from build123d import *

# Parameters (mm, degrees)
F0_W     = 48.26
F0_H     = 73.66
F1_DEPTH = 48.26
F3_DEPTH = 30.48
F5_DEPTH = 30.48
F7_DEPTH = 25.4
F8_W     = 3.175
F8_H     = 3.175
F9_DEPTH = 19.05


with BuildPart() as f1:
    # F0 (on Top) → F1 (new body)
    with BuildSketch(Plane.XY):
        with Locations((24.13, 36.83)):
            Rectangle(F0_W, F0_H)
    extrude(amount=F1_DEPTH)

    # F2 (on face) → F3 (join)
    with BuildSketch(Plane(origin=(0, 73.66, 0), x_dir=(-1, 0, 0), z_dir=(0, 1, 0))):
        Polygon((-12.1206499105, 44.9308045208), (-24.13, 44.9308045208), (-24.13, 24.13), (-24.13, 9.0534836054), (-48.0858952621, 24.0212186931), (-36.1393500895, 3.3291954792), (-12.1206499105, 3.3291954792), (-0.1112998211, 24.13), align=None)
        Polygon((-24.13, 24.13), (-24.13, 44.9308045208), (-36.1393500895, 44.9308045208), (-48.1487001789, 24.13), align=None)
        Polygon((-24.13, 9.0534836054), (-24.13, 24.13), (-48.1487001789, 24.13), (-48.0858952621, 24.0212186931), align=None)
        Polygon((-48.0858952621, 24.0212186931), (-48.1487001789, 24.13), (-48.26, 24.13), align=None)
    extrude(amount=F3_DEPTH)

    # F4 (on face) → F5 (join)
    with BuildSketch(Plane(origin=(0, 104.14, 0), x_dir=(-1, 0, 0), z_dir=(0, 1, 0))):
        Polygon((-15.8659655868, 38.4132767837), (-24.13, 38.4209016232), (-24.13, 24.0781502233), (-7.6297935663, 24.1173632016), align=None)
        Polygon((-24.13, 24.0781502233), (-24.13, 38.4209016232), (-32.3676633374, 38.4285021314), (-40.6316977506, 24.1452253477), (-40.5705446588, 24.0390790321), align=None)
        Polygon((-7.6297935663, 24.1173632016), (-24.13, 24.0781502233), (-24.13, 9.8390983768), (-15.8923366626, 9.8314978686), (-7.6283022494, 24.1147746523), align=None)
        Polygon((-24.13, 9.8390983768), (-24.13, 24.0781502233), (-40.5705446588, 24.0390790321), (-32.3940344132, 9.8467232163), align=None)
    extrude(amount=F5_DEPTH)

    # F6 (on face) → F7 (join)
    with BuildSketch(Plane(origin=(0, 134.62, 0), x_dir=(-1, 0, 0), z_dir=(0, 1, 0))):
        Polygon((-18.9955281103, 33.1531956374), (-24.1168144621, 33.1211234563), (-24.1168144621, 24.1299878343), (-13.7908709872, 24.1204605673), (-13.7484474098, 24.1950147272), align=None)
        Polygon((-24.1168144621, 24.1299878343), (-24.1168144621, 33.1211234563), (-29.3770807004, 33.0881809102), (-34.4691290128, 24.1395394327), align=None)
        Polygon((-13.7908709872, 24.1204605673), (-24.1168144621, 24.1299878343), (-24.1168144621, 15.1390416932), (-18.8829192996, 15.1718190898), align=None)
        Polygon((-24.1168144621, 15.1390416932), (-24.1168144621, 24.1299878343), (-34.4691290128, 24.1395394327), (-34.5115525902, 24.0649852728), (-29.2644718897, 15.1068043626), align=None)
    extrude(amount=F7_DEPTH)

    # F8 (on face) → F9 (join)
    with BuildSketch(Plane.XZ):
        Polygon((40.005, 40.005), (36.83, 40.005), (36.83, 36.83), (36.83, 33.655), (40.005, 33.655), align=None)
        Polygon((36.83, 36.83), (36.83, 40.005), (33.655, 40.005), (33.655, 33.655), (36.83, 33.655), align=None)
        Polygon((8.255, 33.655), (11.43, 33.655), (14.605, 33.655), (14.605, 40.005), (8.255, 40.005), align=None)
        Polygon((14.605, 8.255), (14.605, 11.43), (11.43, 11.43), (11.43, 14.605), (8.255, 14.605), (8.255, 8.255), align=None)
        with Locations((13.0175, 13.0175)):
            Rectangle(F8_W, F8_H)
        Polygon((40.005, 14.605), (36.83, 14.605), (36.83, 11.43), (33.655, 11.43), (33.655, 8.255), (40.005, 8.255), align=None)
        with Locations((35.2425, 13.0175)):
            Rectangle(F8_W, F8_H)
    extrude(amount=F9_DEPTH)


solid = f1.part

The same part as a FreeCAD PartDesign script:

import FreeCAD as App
import Part
import Sketcher
Q = App.Units.Quantity

doc = App.newDocument("Part")
body = doc.addObject("PartDesign::Body", "Body")

# Sketch on XY plane
sketch1 = doc.addObject("Sketcher::SketchObject", "Sketch")
body.addObject(sketch1)
sketch1.AttachmentSupport = (doc.XY_Plane, [""])
sketch1.MapMode = "FlatFace"
sketch1.addGeometry(Part.LineSegment(App.Vector(0, 73.66, 0), App.Vector(0, 0, 0)), False)
sketch1.addGeometry(Part.LineSegment(App.Vector(0, 0, 0), App.Vector(48.26, 0, 0)), False)
sketch1.addGeometry(Part.LineSegment(App.Vector(48.26, 0, 0), App.Vector(48.26, 73.66, 0)), False)
sketch1.addGeometry(Part.LineSegment(App.Vector(48.26, 73.66, 0), App.Vector(0, 73.66, 0)), False)
sketch1.addConstraint(Sketcher.Constraint("Coincident", 0, 2, 1, 1))
sketch1.addConstraint(Sketcher.Constraint("Coincident", 1, 2, 2, 1))
sketch1.addConstraint(Sketcher.Constraint("Coincident", 2, 2, 3, 1))
sketch1.addConstraint(Sketcher.Constraint("Coincident", 3, 2, 0, 1))
sketch1.addConstraint(Sketcher.Constraint("Vertical", 0))
sketch1.addConstraint(Sketcher.Constraint("Horizontal", 1))
sketch1.addConstraint(Sketcher.Constraint("Vertical", 2))
sketch1.addConstraint(Sketcher.Constraint("Horizontal", 3))
sketch1.addConstraint(Sketcher.Constraint("Coincident", 0, 2, -1, 1))
sketch1.addConstraint(Sketcher.Constraint("DistanceX", 1, 1, 1, 2, Q("1.9 in")))
sketch1.addConstraint(Sketcher.Constraint("DistanceY", 0, 2, 0, 1, Q("2.9 in")))
pad1 = doc.addObject("PartDesign::Pad", "Pad")
body.addObject(pad1)
pad1.Profile = sketch1
pad1.Length = Q("1.9 in")

# Sketch on XZ plane
sketch2 = doc.addObject("Sketcher::SketchObject", "Sketch001")
body.addObject(sketch2)
sketch2.AttachmentSupport = (doc.XZ_Plane, [""])
sketch2.MapMode = "FlatFace"
sketch2.AttachmentOffset = App.Placement(App.Vector(0, 0, -2.9 * 25.4), App.Rotation())
sketch2.addGeometry(Part.LineSegment(App.Vector(12.12065, 44.930805, 0), App.Vector(36.13935, 44.930805, 0)), False)
sketch2.addGeometry(Part.LineSegment(App.Vector(36.13935, 44.930805, 0), App.Vector(48.1487, 24.13, 0)), False)
sketch2.addGeometry(Part.LineSegment(App.Vector(48.1487, 24.13, 0), App.Vector(48.26, 24.13, 0)), False)
sketch2.addGeometry(Part.LineSegment(App.Vector(48.26, 24.13, 0), App.Vector(48.085895, 24.021219, 0)), False)
sketch2.addGeometry(Part.LineSegment(App.Vector(48.085895, 24.021219, 0), App.Vector(36.13935, 3.329195, 0)), False)
sketch2.addGeometry(Part.LineSegment(App.Vector(36.13935, 3.329195, 0), App.Vector(12.12065, 3.329195, 0)), False)
sketch2.addGeometry(Part.LineSegment(App.Vector(12.12065, 3.329195, 0), App.Vector(0.1113, 24.13, 0)), False)
sketch2.addGeometry(Part.LineSegment(App.Vector(0.1113, 24.13, 0), App.Vector(12.12065, 44.930805, 0)), False)
sketch2.addConstraint(Sketcher.Constraint("Coincident", 0, 2, 1, 1))
sketch2.addConstraint(Sketcher.Constraint("Coincident", 1, 2, 2, 1))
sketch2.addConstraint(Sketcher.Constraint("Coincident", 2, 2, 3, 1))
sketch2.addConstraint(Sketcher.Constraint("Coincident", 3, 2, 4, 1))
sketch2.addConstraint(Sketcher.Constraint("Coincident", 4, 2, 5, 1))
sketch2.addConstraint(Sketcher.Constraint("Coincident", 5, 2, 6, 1))
sketch2.addConstraint(Sketcher.Constraint("Coincident", 6, 2, 7, 1))
sketch2.addConstraint(Sketcher.Constraint("Coincident", 7, 2, 0, 1))
sketch2.addConstraint(Sketcher.Constraint("Horizontal", 0))
sketch2.addConstraint(Sketcher.Constraint("Horizontal", 2))
sketch2.addConstraint(Sketcher.Constraint("Horizontal", 5))
sketch2.addConstraint(Sketcher.Constraint("Parallel", 1, 6))
sketch2.addConstraint(Sketcher.Constraint("Parallel", 4, 7))
sketch2.addConstraint(Sketcher.Constraint("Horizontal", 2, 2, 6, 2))
sketch2.addConstraint(Sketcher.Constraint("Vertical", 0, 2, 4, 2))
sketch2.addConstraint(Sketcher.Constraint("Vertical", 5, 2, 7, 2))
sketch2.addConstraint(Sketcher.Constraint("Equal", 1, 6))
sketch2.addConstraint(Sketcher.Constraint("Angle", 1, Q("-60 deg")))
sketch2.addConstraint(Sketcher.Constraint("DistanceX", -1, 1, 2, 2, Q("1.9 in")))
sketch2.addConstraint(Sketcher.Constraint("DistanceY", -1, 1, 1, 2, Q("0.95 in")))
sketch2.addConstraint(Sketcher.Constraint("DistanceX", 0, 1, 0, 2, Q("24.0187 mm")))
sketch2.addConstraint(Sketcher.Constraint("DistanceX", 2, 1, 2, 2, Q("0.1113 mm")))
sketch2.addConstraint(Sketcher.Constraint("Distance", 1, Q("24.0187 mm")))
sketch2.addConstraint(Sketcher.Constraint("Distance", 4, Q("23.89309 mm")))
pad2 = doc.addObject("PartDesign::Pad", "Pad001")
body.addObject(pad2)
pad2.Profile = sketch2
pad2.Length = Q("1.2 in")
pad2.Reversed = True

# Sketch on XZ plane
sketch3 = doc.addObject("Sketcher::SketchObject", "Sketch002")
body.addObject(sketch3)
sketch3.AttachmentSupport = (doc.XZ_Plane, [""])
sketch3.MapMode = "FlatFace"
sketch3.AttachmentOffset = App.Placement(App.Vector(0, 0, -4.1 * 25.4), App.Rotation())
sketch3.addGeometry(Part.LineSegment(App.Vector(15.865966, 38.413277, 0), App.Vector(24.13, 38.420902, 0)), False)
sketch3.addGeometry(Part.LineSegment(App.Vector(24.13, 38.420902, 0), App.Vector(32.367663, 38.428502, 0)), False)
sketch3.addGeometry(Part.LineSegment(App.Vector(32.367663, 38.428502, 0), App.Vector(40.631698, 24.145225, 0)), False)
sketch3.addGeometry(Part.LineSegment(App.Vector(40.631698, 24.145225, 0), App.Vector(40.570545, 24.039079, 0)), False)
sketch3.addGeometry(Part.LineSegment(App.Vector(40.570545, 24.039079, 0), App.Vector(32.394034, 9.846723, 0)), False)
sketch3.addGeometry(Part.LineSegment(App.Vector(32.394034, 9.846723, 0), App.Vector(24.13, 9.839098, 0)), False)
sketch3.addGeometry(Part.LineSegment(App.Vector(24.13, 9.839098, 0), App.Vector(15.892337, 9.831498, 0)), False)
sketch3.addGeometry(Part.LineSegment(App.Vector(15.892337, 9.831498, 0), App.Vector(7.628302, 24.114775, 0)), False)
sketch3.addGeometry(Part.LineSegment(App.Vector(7.628302, 24.114775, 0), App.Vector(7.629794, 24.117363, 0)), False)
sketch3.addGeometry(Part.LineSegment(App.Vector(7.629794, 24.117363, 0), App.Vector(15.865966, 38.413277, 0)), False)
sketch3.addConstraint(Sketcher.Constraint("Coincident", 0, 2, 1, 1))
sketch3.addConstraint(Sketcher.Constraint("Coincident", 1, 2, 2, 1))
sketch3.addConstraint(Sketcher.Constraint("Coincident", 2, 2, 3, 1))
sketch3.addConstraint(Sketcher.Constraint("Coincident", 3, 2, 4, 1))
sketch3.addConstraint(Sketcher.Constraint("Coincident", 4, 2, 5, 1))
sketch3.addConstraint(Sketcher.Constraint("Coincident", 5, 2, 6, 1))
sketch3.addConstraint(Sketcher.Constraint("Coincident", 6, 2, 7, 1))
sketch3.addConstraint(Sketcher.Constraint("Coincident", 7, 2, 8, 1))
sketch3.addConstraint(Sketcher.Constraint("Coincident", 8, 2, 9, 1))
sketch3.addConstraint(Sketcher.Constraint("Coincident", 9, 2, 0, 1))
sketch3.addConstraint(Sketcher.Constraint("Parallel", 0, 1))
sketch3.addConstraint(Sketcher.Constraint("Parallel", 3, 4))
sketch3.addConstraint(Sketcher.Constraint("Parallel", 1, 5))
sketch3.addConstraint(Sketcher.Constraint("Parallel", 5, 6))
sketch3.addConstraint(Sketcher.Constraint("Parallel", 2, 7))
sketch3.addConstraint(Sketcher.Constraint("Parallel", 4, 8))
sketch3.addConstraint(Sketcher.Constraint("Parallel", 4, 9))
sketch3.addConstraint(Sketcher.Constraint("Vertical", 0, 2, 5, 2))
sketch3.addConstraint(Sketcher.Constraint("Equal", 0, 5))
sketch3.addConstraint(Sketcher.Constraint("Equal", 1, 6))
sketch3.addConstraint(Sketcher.Constraint("DistanceX", -1, 1, 0, 2, Q("0.95 in")))
sketch3.addConstraint(Sketcher.Constraint("DistanceY", 5, 2, 4, 2, Q("0.0003002 in")))
sketch3.addConstraint(Sketcher.Constraint("DistanceY", -1, 1, 0, 2, Q("38.420902 mm")))
sketch3.addConstraint(Sketcher.Constraint("DistanceY", -1, 1, 5, 2, Q("9.839098 mm")))
sketch3.addConstraint(Sketcher.Constraint("DistanceY", -1, 1, 3, 2, Q("24.039079 mm")))
sketch3.addConstraint(Sketcher.Constraint("DistanceX", 1, 2, 3, 2, Q("8.202881 mm")))
sketch3.addConstraint(Sketcher.Constraint("DistanceX", 4, 2, 3, 2, Q("8.17651 mm")))
sketch3.addConstraint(Sketcher.Constraint("DistanceX", 6, 2, 2, 2, Q("24.739361 mm")))
sketch3.addConstraint(Sketcher.Constraint("DistanceY", 4, 2, 7, 2, Q("14.268051 mm")))
sketch3.addConstraint(Sketcher.Constraint("DistanceX", 7, 2, 8, 2, Q("0.001491 mm")))
pad3 = doc.addObject("PartDesign::Pad", "Pad002")
body.addObject(pad3)
pad3.Profile = sketch3
pad3.Length = Q("1.2 in")
pad3.Reversed = True

# Sketch on XZ plane
sketch4 = doc.addObject("Sketcher::SketchObject", "Sketch003")
body.addObject(sketch4)
sketch4.AttachmentSupport = (doc.XZ_Plane, [""])
sketch4.MapMode = "FlatFace"
sketch4.AttachmentOffset = App.Placement(App.Vector(0, 0, -5.3 * 25.4), App.Rotation())
sketch4.addGeometry(Part.LineSegment(App.Vector(18.995528, 33.153196, 0), App.Vector(24.116814, 33.121123, 0)), False)
sketch4.addGeometry(Part.LineSegment(App.Vector(24.116814, 33.121123, 0), App.Vector(29.377081, 33.088181, 0)), False)
sketch4.addGeometry(Part.LineSegment(App.Vector(29.377081, 33.088181, 0), App.Vector(34.469129, 24.139539, 0)), False)
sketch4.addGeometry(Part.LineSegment(App.Vector(34.469129, 24.139539, 0), App.Vector(34.511553, 24.064985, 0)), False)
sketch4.addGeometry(Part.LineSegment(App.Vector(34.511553, 24.064985, 0), App.Vector(29.264472, 15.106804, 0)), False)
sketch4.addGeometry(Part.LineSegment(App.Vector(29.264472, 15.106804, 0), App.Vector(24.116814, 15.139042, 0)), False)
sketch4.addGeometry(Part.LineSegment(App.Vector(24.116814, 15.139042, 0), App.Vector(18.882919, 15.171819, 0)), False)
sketch4.addGeometry(Part.LineSegment(App.Vector(18.882919, 15.171819, 0), App.Vector(13.790871, 24.120461, 0)), False)
sketch4.addGeometry(Part.LineSegment(App.Vector(13.790871, 24.120461, 0), App.Vector(13.748447, 24.195015, 0)), False)
sketch4.addGeometry(Part.LineSegment(App.Vector(13.748447, 24.195015, 0), App.Vector(18.995528, 33.153196, 0)), False)
sketch4.addConstraint(Sketcher.Constraint("Coincident", 0, 2, 1, 1))
sketch4.addConstraint(Sketcher.Constraint("Coincident", 1, 2, 2, 1))
sketch4.addConstraint(Sketcher.Constraint("Coincident", 2, 2, 3, 1))
sketch4.addConstraint(Sketcher.Constraint("Coincident", 3, 2, 4, 1))
sketch4.addConstraint(Sketcher.Constraint("Coincident", 4, 2, 5, 1))
sketch4.addConstraint(Sketcher.Constraint("Coincident", 5, 2, 6, 1))
sketch4.addConstraint(Sketcher.Constraint("Coincident", 6, 2, 7, 1))
sketch4.addConstraint(Sketcher.Constraint("Coincident", 7, 2, 8, 1))
sketch4.addConstraint(Sketcher.Constraint("Coincident", 8, 2, 9, 1))
sketch4.addConstraint(Sketcher.Constraint("Coincident", 9, 2, 0, 1))
sketch4.addConstraint(Sketcher.Constraint("Parallel", 0, 1))
sketch4.addConstraint(Sketcher.Constraint("Parallel", 2, 3))
sketch4.addConstraint(Sketcher.Constraint("Parallel", 1, 5))
sketch4.addConstraint(Sketcher.Constraint("Parallel", 5, 6))
sketch4.addConstraint(Sketcher.Constraint("Parallel", 3, 7))
sketch4.addConstraint(Sketcher.Constraint("Parallel", 7, 8))
sketch4.addConstraint(Sketcher.Constraint("Parallel", 4, 9))
sketch4.addConstraint(Sketcher.Constraint("Vertical", 0, 2, 5, 2))
sketch4.addConstraint(Sketcher.Constraint("Equal", 2, 7))
sketch4.addConstraint(Sketcher.Constraint("Equal", 3, 8))
sketch4.addConstraint(Sketcher.Constraint("DistanceX", 7, 2, 4, 2, Q("15.473601 mm")))
sketch4.addConstraint(Sketcher.Constraint("Distance", 1, Q("5.260369 mm")))
sketch4.addConstraint(Sketcher.Constraint("Distance", 3, Q("0.085779 mm")))
sketch4.addConstraint(Sketcher.Constraint("Distance", 5, Q("5.147758 mm")))
sketch4.addConstraint(Sketcher.Constraint("DistanceX", -1, 1, 1, 2, Q("29.377081 mm")))
sketch4.addConstraint(Sketcher.Constraint("DistanceY", -1, 1, 1, 2, Q("33.088181 mm")))
sketch4.addConstraint(Sketcher.Constraint("DistanceX", -1, 1, 2, 2, Q("34.469129 mm")))
sketch4.addConstraint(Sketcher.Constraint("DistanceY", -1, 1, 2, 2, Q("24.139539 mm")))
sketch4.addConstraint(Sketcher.Constraint("DistanceY", -1, 1, 5, 2, Q("15.139042 mm")))
sketch4.addConstraint(Sketcher.Constraint("DistanceY", -1, 1, 6, 2, Q("15.171819 mm")))
pad4 = doc.addObject("PartDesign::Pad", "Pad003")
body.addObject(pad4)
pad4.Profile = sketch4
pad4.Length = Q("1 in")
pad4.Reversed = True

# Sketch on XZ plane
sketch5 = doc.addObject("Sketcher::SketchObject", "Sketch004")
body.addObject(sketch5)
sketch5.AttachmentSupport = (doc.XZ_Plane, [""])
sketch5.MapMode = "FlatFace"
sketch5.addGeometry(Part.LineSegment(App.Vector(40.005, 40.005, 0), App.Vector(33.655, 40.005, 0)), False)
sketch5.addGeometry(Part.LineSegment(App.Vector(33.655, 40.005, 0), App.Vector(33.655, 33.655, 0)), False)
sketch5.addGeometry(Part.LineSegment(App.Vector(33.655, 33.655, 0), App.Vector(40.005, 33.655, 0)), False)
sketch5.addGeometry(Part.LineSegment(App.Vector(40.005, 33.655, 0), App.Vector(40.005, 40.005, 0)), False)
sketch5.addGeometry(Part.LineSegment(App.Vector(8.255, 33.655, 0), App.Vector(14.605, 33.655, 0)), False)
sketch5.addGeometry(Part.LineSegment(App.Vector(14.605, 33.655, 0), App.Vector(14.605, 40.005, 0)), False)
sketch5.addGeometry(Part.LineSegment(App.Vector(14.605, 40.005, 0), App.Vector(8.255, 40.005, 0)), False)
sketch5.addGeometry(Part.LineSegment(App.Vector(8.255, 40.005, 0), App.Vector(8.255, 33.655, 0)), False)
sketch5.addGeometry(Part.LineSegment(App.Vector(14.605, 8.255, 0), App.Vector(14.605, 14.605, 0)), False)
sketch5.addGeometry(Part.LineSegment(App.Vector(14.605, 14.605, 0), App.Vector(8.255, 14.605, 0)), False)
sketch5.addGeometry(Part.LineSegment(App.Vector(8.255, 14.605, 0), App.Vector(8.255, 8.255, 0)), False)
sketch5.addGeometry(Part.LineSegment(App.Vector(8.255, 8.255, 0), App.Vector(14.605, 8.255, 0)), False)
sketch5.addGeometry(Part.LineSegment(App.Vector(40.005, 14.605, 0), App.Vector(33.655, 14.605, 0)), False)
sketch5.addGeometry(Part.LineSegment(App.Vector(33.655, 14.605, 0), App.Vector(33.655, 8.255, 0)), False)
sketch5.addGeometry(Part.LineSegment(App.Vector(33.655, 8.255, 0), App.Vector(40.005, 8.255, 0)), False)
sketch5.addGeometry(Part.LineSegment(App.Vector(40.005, 8.255, 0), App.Vector(40.005, 14.605, 0)), False)
sketch5.addConstraint(Sketcher.Constraint("Coincident", 0, 2, 1, 1))
sketch5.addConstraint(Sketcher.Constraint("Coincident", 1, 2, 2, 1))
sketch5.addConstraint(Sketcher.Constraint("Coincident", 2, 2, 3, 1))
sketch5.addConstraint(Sketcher.Constraint("Coincident", 3, 2, 0, 1))
sketch5.addConstraint(Sketcher.Constraint("Coincident", 4, 2, 5, 1))
sketch5.addConstraint(Sketcher.Constraint("Coincident", 5, 2, 6, 1))
sketch5.addConstraint(Sketcher.Constraint("Coincident", 6, 2, 7, 1))
sketch5.addConstraint(Sketcher.Constraint("Coincident", 7, 2, 4, 1))
sketch5.addConstraint(Sketcher.Constraint("Coincident", 8, 2, 9, 1))
sketch5.addConstraint(Sketcher.Constraint("Coincident", 9, 2, 10, 1))
sketch5.addConstraint(Sketcher.Constraint("Coincident", 10, 2, 11, 1))
sketch5.addConstraint(Sketcher.Constraint("Coincident", 11, 2, 8, 1))
sketch5.addConstraint(Sketcher.Constraint("Coincident", 12, 2, 13, 1))
sketch5.addConstraint(Sketcher.Constraint("Coincident", 13, 2, 14, 1))
sketch5.addConstraint(Sketcher.Constraint("Coincident", 14, 2, 15, 1))
sketch5.addConstraint(Sketcher.Constraint("Coincident", 15, 2, 12, 1))
sketch5.addConstraint(Sketcher.Constraint("Horizontal", 0))
sketch5.addConstraint(Sketcher.Constraint("Vertical", 1))
sketch5.addConstraint(Sketcher.Constraint("Horizontal", 2))
sketch5.addConstraint(Sketcher.Constraint("Vertical", 3))
sketch5.addConstraint(Sketcher.Constraint("Horizontal", 4))
sketch5.addConstraint(Sketcher.Constraint("Vertical", 5))
sketch5.addConstraint(Sketcher.Constraint("Horizontal", 6))
sketch5.addConstraint(Sketcher.Constraint("Vertical", 7))
sketch5.addConstraint(Sketcher.Constraint("Vertical", 8))
sketch5.addConstraint(Sketcher.Constraint("Horizontal", 9))
sketch5.addConstraint(Sketcher.Constraint("Vertical", 10))
sketch5.addConstraint(Sketcher.Constraint("Horizontal", 11))
sketch5.addConstraint(Sketcher.Constraint("Horizontal", 12))
sketch5.addConstraint(Sketcher.Constraint("Vertical", 13))
sketch5.addConstraint(Sketcher.Constraint("Horizontal", 14))
sketch5.addConstraint(Sketcher.Constraint("Vertical", 15))
sketch5.addConstraint(Sketcher.Constraint("Horizontal", 2, 2, 4, 2))
sketch5.addConstraint(Sketcher.Constraint("Horizontal", 3, 2, 5, 2))
sketch5.addConstraint(Sketcher.Constraint("Horizontal", 9, 2, 12, 2))
sketch5.addConstraint(Sketcher.Constraint("Horizontal", 11, 2, 13, 2))
sketch5.addConstraint(Sketcher.Constraint("Vertical", 5, 2, 8, 2))
sketch5.addConstraint(Sketcher.Constraint("Vertical", 7, 2, 9, 2))
sketch5.addConstraint(Sketcher.Constraint("Vertical", 1, 2, 12, 2))
sketch5.addConstraint(Sketcher.Constraint("Vertical", 3, 2, 14, 2))
sketch5.addConstraint(Sketcher.Constraint("Equal", 2, 4))
sketch5.addConstraint(Sketcher.Constraint("Equal", 14, 1))
sketch5.addConstraint(Sketcher.Constraint("Equal", 7, 8))
sketch5.addConstraint(Sketcher.Constraint("DistanceX", 4, 2, 2, 2, Q("1 in")))
sketch5.addConstraint(Sketcher.Constraint("DistanceY", 8, 2, 5, 2, Q("1 in")))
sketch5.addConstraint(Sketcher.Constraint("DistanceX", 0, 2, 0, 1, Q("0.25 in")))
sketch5.addConstraint(Sketcher.Constraint("DistanceX", -1, 1, 0, 2, Q("1.325 in")))
sketch5.addConstraint(Sketcher.Constraint("DistanceY", -1, 1, 0, 2, Q("1.575 in")))
pad5 = doc.addObject("PartDesign::Pad", "Pad004")
body.addObject(pad5)
pad5.Profile = sketch5
pad5.Length = Q("0.75 in")

doc.recompute()
